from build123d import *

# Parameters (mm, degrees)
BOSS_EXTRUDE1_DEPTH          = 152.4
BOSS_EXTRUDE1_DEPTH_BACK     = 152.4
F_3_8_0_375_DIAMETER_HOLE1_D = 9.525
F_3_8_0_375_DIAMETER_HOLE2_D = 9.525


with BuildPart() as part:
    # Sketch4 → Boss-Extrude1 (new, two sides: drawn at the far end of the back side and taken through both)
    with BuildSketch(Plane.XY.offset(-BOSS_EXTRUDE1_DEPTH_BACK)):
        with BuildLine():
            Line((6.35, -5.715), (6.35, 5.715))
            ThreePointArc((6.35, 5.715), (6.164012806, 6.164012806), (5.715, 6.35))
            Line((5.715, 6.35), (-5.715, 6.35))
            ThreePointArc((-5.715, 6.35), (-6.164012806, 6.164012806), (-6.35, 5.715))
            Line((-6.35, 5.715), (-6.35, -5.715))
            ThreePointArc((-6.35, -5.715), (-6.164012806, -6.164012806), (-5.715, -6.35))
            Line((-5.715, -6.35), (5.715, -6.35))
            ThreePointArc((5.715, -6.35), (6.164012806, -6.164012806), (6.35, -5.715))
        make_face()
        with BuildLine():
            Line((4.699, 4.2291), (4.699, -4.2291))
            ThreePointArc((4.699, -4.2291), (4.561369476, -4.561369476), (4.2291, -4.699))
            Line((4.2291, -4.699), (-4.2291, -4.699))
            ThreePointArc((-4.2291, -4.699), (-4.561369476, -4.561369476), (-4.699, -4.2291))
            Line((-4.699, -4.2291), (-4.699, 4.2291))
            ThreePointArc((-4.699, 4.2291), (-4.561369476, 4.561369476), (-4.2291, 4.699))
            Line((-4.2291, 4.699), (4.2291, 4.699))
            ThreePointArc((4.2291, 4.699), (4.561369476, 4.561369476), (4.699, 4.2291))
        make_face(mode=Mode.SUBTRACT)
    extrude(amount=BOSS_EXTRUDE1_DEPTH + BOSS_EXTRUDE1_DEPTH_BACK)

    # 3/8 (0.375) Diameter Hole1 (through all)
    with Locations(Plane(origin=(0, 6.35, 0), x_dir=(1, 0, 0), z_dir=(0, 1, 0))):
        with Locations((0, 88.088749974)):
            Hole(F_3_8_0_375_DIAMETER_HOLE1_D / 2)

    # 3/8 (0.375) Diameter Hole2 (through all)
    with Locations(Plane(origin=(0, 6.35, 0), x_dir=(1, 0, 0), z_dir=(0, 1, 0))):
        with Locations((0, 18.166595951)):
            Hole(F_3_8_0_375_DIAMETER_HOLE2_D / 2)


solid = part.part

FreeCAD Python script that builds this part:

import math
import FreeCAD as App
import Part
import Sketcher

V = App.Vector
Q = App.Units.Quantity

doc = App.newDocument("Part")
params = doc.addObject("Spreadsheet::Sheet", "Params")
for row, (alias, value) in enumerate([
    ("sketch1_radius", "0.025 in"),
    ("sketch1_width", "0.45 in"),
    ("sketch1_width2", "0.333 in"),
    ("pad1_length", "6 in"),
    ("pad1_length2", "6 in"),
    ("sketch2_diameter", "0.375 in"),
    ("hole_diameter", "0.375 in"),
    ("sketch3_diameter", "0.375 in"),
    ("hole2_diameter", "0.375 in"),
], start=1):
    params.set(f"A{row}", alias)
    params.set(f"B{row}", "=" + value)
    params.setAlias(f"B{row}", alias)

body = doc.addObject("PartDesign::Body", "Body")

sketch1 = body.newObject("Sketcher::SketchObject", "Sketch")
sketch1.AttachmentSupport = (doc.getObject("XY_Plane"), [""])
sketch1.MapMode = "FlatFace"
sketch1.addGeometry([
    Part.LineSegment(V(6.35, -5.71, 0), V(6.35, 5.71, 0)),
    Part.ArcOfCircle(Part.Circle(V(5.71, 5.71, 0), V(0, 0, 1), 0.64), math.radians(0), math.radians(90)),
    Part.LineSegment(V(5.71, 6.35, 0), V(-5.71, 6.35, 0)),
    Part.ArcOfCircle(Part.Circle(V(-5.71, 5.71, 0), V(0, 0, 1), 0.64), math.radians(90), math.radians(180)),
    Part.LineSegment(V(-6.35, 5.71, 0), V(-6.35, -5.71, 0)),
    Part.ArcOfCircle(Part.Circle(V(-5.71, -5.71, 0), V(0, 0, 1), 0.64), math.radians(180), math.radians(270)),
    Part.LineSegment(V(-5.71, -6.35, 0), V(5.71, -6.35, 0)),
    Part.ArcOfCircle(Part.Circle(V(5.71, -5.71, 0), V(0, 0, 1), 0.64), math.radians(-90), math.radians(0)),
    Part.ArcOfCircle(Part.Circle(V(4.23, 4.23, 0), V(0, 0, 1), 0.47), math.radians(0), math.radians(90)),
    Part.LineSegment(V(4.7, 4.23, 0), V(4.7, -4.23, 0)),
    Part.ArcOfCircle(Part.Circle(V(4.23, -4.23, 0), V(0, 0, 1), 0.47), math.radians(-90), math.radians(0)),
    Part.LineSegment(V(4.23, -4.7, 0), V(-4.23, -4.7, 0)),
    Part.ArcOfCircle(Part.Circle(V(-4.23, -4.23, 0), V(0, 0, 1), 0.47), math.radians(-180), math.radians(-90)),
    Part.LineSegment(V(-4.7, -4.23, 0), V(-4.7, 4.23, 0)),
    Part.ArcOfCircle(Part.Circle(V(-4.23, 4.23, 0), V(0, 0, 1), 0.47), math.radians(90), math.radians(180)),
    Part.LineSegment(V(-4.23, 4.7, 0), V(4.23, 4.7, 0)),
], False)
sketch1.addConstraint([
    Sketcher.Constraint("Tangent", 0, 2, 1, 1),
    Sketcher.Constraint("Tangent", 1, 2, 2, 1),
    Sketcher.Constraint("Tangent", 2, 2, 3, 1),
    Sketcher.Constraint("Tangent", 3, 2, 4, 1),
    Sketcher.Constraint("Tangent", 4, 2, 5, 1),
    Sketcher.Constraint("Tangent", 5, 2, 6, 1),
    Sketcher.Constraint("Tangent", 6, 2, 7, 1),
    Sketcher.Constraint("Tangent", 7, 2, 0, 1),
    Sketcher.Constraint("Tangent", 8, 1, 9, 1),
    Sketcher.Constraint("Tangent", 9, 2, 10, 2),
    Sketcher.Constraint("Tangent", 10, 1, 11, 1),
    Sketcher.Constraint("Tangent", 11, 2, 12, 2),
    Sketcher.Constraint("Tangent", 12, 1, 13, 1),
    Sketcher.Constraint("Tangent", 13, 2, 14, 2),
    Sketcher.Constraint("Tangent", 14, 1, 15, 1),
    Sketcher.Constraint("Tangent", 15, 2, 8, 2),
    Sketcher.Constraint("Vertical", 0),
    Sketcher.Constraint("Horizontal", 2),
    Sketcher.Constraint("Vertical", 4),
    Sketcher.Constraint("Horizontal", 6),
    Sketcher.Constraint("Vertical", 9),
    Sketcher.Constraint("Horizontal", 11),
    Sketcher.Constraint("Vertical", 13),
    Sketcher.Constraint("Horizontal", 15),
    Sketcher.Constraint("Equal", 1, 3),
    Sketcher.Constraint("Equal", 3, 5),
    Sketcher.Constraint("Equal", 5, 7),
    Sketcher.Constraint("Equal", 8, 10),
    Sketcher.Constraint("Equal", 10, 12),
    Sketcher.Constraint("Equal", 12, 14),
    Sketcher.Constraint("Symmetric", 1, 3, 5, 3, -1, 1),
    Sketcher.Constraint("Symmetric", 8, 3, 12, 3, -1, 1),
    Sketcher.Constraint("Equal", 6, 0),
    Sketcher.Constraint("Equal", 15, 9),
    Sketcher.Constraint("Radius", 1, Q("0.025 in")),
    Sketcher.Constraint("DistanceX", 2, 2, 2, 1, Q("0.45 in")),
    Sketcher.Constraint("Radius", 8, Q("0.0185 in")),
    Sketcher.Constraint("DistanceX", 11, 2, 11, 1, Q("0.333 in")),
])
sketch1.setExpression("Constraints[34]", "Params.sketch1_radius")
sketch1.setExpression("Constraints[35]", "Params.sketch1_width")
sketch1.setExpression("Constraints[37]", "Params.sketch1_width2")
pad1 = body.newObject("PartDesign::Pad", "Pad")
pad1.Profile = sketch1
pad1.Type = "TwoLengths"
pad1.setExpression("Length", "Params.pad1_length")
pad1.setExpression("Length2", "Params.pad1_length2")

sketch2 = body.newObject("Sketcher::SketchObject", "Sketch001")
sketch2.AttachmentSupport = (doc.getObject("XZ_Plane"), [""])
sketch2.MapMode = "FlatFace"
sketch2.AttachmentOffset = App.Placement(V(0, 0, -0.25 * 25.4), App.Rotation())
sketch2.addGeometry(Part.Circle(V(0, -88.1, 0), V(0, 0, 1), 4.8), False)
sketch2.addConstraint([
    Sketcher.Constraint("PointOnObject", 0, 3, -2),
    Sketcher.Constraint("Diameter", 0, Q("0.375 in")),
    Sketcher.Constraint("DistanceY", 0, 3, -1, 1, Q("88.08875 mm")),
])
sketch2.setExpression("Constraints[1]", "Params.sketch2_diameter")
doc.recompute()
hole = body.newObject("PartDesign::Hole", "Hole")
hole.Profile = sketch2
hole.ThreadType = "None"
hole.setExpression("Diameter", "Params.hole_diameter")
hole.DepthType = "ThroughAll"
hole.Reversed = True

sketch3 = body.newObject("Sketcher::SketchObject", "Sketch002")
sketch3.AttachmentSupport = (doc.getObject("XZ_Plane"), [""])
sketch3.MapMode = "FlatFace"
sketch3.AttachmentOffset = App.Placement(V(0, 0, -0.25 * 25.4), App.Rotation())
sketch3.addGeometry(Part.Circle(V(0, -18.2, 0), V(0, 0, 1), 4.8), False)
sketch3.addConstraint([
    Sketcher.Constraint("PointOnObject", 0, 3, -2),
    Sketcher.Constraint("Diameter", 0, Q("0.375 in")),
    Sketcher.Constraint("DistanceY", 0, 3, -1, 1, Q("18.166596 mm")),
])
sketch3.setExpression("Constraints[1]", "Params.sketch3_diameter")
doc.recompute()
hole2 = body.newObject("PartDesign::Hole", "Hole001")
hole2.Profile = sketch3
hole2.ThreadType = "None"
hole2.setExpression("Diameter", "Params.hole2_diameter")
hole2.DepthType = "ThroughAll"
hole2.Reversed = True

doc.recompute()
